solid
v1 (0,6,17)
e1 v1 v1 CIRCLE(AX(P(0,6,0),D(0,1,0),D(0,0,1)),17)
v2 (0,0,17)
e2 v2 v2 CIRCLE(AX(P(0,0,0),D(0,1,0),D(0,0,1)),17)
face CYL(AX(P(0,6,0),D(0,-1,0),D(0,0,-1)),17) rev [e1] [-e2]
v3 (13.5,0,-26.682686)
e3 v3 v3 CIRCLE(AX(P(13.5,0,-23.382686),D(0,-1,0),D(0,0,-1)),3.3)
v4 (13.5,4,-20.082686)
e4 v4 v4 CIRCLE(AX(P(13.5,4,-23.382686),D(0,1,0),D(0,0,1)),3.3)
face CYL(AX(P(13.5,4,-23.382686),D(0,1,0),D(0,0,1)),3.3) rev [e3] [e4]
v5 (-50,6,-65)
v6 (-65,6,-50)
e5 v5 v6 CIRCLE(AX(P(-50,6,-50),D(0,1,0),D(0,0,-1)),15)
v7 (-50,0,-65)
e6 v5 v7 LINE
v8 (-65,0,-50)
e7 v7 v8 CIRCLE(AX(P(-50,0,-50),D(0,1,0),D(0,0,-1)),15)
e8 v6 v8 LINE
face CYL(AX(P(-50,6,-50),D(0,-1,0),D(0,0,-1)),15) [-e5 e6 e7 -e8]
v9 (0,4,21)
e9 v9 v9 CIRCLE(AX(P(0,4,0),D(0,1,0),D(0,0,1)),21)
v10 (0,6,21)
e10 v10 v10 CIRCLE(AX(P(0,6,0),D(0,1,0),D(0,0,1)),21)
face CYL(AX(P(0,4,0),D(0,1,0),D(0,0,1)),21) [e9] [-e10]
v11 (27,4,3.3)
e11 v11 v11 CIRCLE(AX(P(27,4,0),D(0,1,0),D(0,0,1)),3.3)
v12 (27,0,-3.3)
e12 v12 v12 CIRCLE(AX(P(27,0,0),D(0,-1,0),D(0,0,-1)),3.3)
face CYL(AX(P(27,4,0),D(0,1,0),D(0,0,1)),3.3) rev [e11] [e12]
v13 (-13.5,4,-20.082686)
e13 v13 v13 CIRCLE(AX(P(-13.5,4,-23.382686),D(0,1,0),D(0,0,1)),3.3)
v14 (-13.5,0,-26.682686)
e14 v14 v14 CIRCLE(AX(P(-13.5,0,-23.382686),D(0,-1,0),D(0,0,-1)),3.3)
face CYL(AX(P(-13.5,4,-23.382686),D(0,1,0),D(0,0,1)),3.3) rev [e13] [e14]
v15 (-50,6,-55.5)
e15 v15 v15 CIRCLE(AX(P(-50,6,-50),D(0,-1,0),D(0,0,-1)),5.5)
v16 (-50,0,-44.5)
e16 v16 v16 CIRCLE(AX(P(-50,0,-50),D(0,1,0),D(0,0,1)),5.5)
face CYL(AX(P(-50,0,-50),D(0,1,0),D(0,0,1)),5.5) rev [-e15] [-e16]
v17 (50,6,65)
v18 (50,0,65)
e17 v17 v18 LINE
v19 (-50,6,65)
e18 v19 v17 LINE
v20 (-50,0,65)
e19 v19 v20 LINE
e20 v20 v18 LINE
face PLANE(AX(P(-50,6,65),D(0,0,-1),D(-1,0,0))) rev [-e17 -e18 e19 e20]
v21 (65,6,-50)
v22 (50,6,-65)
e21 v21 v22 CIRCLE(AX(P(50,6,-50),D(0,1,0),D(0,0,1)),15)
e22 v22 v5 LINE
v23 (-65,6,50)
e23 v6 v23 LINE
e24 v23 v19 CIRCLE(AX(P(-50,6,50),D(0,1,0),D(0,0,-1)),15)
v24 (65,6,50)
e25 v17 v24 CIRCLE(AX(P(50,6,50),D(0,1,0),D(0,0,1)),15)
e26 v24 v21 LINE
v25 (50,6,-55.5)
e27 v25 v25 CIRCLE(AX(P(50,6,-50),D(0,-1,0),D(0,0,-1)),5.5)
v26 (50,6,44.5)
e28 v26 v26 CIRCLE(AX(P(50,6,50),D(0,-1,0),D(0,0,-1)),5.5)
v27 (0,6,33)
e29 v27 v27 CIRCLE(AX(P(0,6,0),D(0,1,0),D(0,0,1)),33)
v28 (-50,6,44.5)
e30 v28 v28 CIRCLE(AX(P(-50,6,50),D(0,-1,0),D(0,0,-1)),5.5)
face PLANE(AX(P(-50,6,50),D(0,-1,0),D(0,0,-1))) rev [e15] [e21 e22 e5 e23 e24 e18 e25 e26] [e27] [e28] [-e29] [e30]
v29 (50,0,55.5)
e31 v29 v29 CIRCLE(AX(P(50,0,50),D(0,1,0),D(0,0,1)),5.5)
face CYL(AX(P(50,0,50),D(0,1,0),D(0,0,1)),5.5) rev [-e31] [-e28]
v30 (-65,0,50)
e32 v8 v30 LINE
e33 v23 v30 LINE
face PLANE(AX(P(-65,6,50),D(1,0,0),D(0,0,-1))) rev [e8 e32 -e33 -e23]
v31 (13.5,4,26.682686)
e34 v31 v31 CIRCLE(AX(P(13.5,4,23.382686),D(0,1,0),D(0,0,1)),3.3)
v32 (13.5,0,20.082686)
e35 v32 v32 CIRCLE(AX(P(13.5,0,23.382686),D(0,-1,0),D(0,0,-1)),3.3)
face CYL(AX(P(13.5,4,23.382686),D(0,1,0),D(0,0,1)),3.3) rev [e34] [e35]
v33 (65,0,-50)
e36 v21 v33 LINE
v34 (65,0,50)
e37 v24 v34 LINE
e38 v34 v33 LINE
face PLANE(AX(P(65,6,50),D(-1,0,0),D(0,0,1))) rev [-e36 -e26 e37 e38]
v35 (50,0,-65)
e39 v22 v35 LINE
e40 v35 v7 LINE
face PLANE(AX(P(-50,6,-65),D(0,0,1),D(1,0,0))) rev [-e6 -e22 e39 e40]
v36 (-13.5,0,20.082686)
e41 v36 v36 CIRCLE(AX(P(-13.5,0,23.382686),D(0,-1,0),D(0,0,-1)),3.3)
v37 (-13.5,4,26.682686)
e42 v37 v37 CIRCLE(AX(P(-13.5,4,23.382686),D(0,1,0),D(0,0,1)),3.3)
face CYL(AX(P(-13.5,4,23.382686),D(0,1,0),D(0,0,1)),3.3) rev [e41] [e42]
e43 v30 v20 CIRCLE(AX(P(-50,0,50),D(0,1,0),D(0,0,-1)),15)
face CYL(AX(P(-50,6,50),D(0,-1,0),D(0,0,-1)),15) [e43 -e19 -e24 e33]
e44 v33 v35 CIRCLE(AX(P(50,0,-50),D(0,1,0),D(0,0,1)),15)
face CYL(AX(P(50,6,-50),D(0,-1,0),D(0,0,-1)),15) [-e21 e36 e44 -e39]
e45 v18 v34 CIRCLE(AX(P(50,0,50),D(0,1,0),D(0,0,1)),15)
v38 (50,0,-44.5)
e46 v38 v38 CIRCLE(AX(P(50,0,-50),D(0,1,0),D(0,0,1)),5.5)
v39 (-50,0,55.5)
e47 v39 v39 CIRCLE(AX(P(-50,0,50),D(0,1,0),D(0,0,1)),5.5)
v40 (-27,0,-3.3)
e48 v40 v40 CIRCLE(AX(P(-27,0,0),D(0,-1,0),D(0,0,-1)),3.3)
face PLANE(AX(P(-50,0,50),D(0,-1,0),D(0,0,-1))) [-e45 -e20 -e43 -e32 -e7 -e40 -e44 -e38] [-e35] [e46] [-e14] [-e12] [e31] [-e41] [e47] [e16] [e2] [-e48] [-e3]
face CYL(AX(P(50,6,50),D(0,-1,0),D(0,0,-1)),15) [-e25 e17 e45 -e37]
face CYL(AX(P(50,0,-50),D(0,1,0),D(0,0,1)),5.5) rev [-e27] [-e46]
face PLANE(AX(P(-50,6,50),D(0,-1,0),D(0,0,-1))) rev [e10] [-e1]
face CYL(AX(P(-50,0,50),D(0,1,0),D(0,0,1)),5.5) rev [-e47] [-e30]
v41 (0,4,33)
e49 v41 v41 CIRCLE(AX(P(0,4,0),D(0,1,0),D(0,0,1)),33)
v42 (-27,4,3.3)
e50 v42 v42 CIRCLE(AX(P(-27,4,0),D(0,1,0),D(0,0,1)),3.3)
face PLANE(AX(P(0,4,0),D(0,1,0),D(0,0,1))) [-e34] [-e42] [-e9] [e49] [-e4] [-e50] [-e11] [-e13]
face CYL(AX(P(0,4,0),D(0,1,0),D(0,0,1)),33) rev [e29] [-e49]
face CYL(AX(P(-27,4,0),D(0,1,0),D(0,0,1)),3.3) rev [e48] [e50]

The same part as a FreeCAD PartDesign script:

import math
import FreeCAD as App
import Part
import Sketcher

V = App.Vector
Q = App.Units.Quantity

doc = App.newDocument("Part")
body = doc.addObject("PartDesign::Body", "Body")

# Sketch on XZ plane
sketch1 = body.newObject("Sketcher::SketchObject", "Sketch")
sketch1.AttachmentSupport = (doc.getObject("XZ_Plane"), [""])
sketch1.MapMode = "FlatFace"
sketch1.addGeometry(Part.LineSegment(V(-50, 65, 0), V(50, 65, 0)), False)
sketch1.addGeometry(Part.ArcOfCircle(Part.Circle(V(50, 50, 0), V(0, 0, 1), 15), math.radians(0), math.radians(90)), False)
sketch1.addGeometry(Part.LineSegment(V(65, 50, 0), V(65, -50, 0)), False)
sketch1.addGeometry(Part.ArcOfCircle(Part.Circle(V(50, -50, 0), V(0, 0, 1), 15), math.radians(-90), math.radians(0)), False)
sketch1.addGeometry(Part.LineSegment(V(50, -65, 0), V(-50, -65, 0)), False)
sketch1.addGeometry(Part.ArcOfCircle(Part.Circle(V(-50, -50, 0), V(0, 0, 1), 15), math.radians(180), math.radians(270)), False)
sketch1.addGeometry(Part.LineSegment(V(-65, -50, 0), V(-65, 50, 0)), False)
sketch1.addGeometry(Part.ArcOfCircle(Part.Circle(V(-50, 50, 0), V(0, 0, 1), 15), math.radians(90), math.radians(180)), False)
sketch1.addGeometry(Part.Circle(V(0, 0, 0), V(0, 0, 1), 17), False)
sketch1.addConstraint(Sketcher.Constraint("Tangent", 0, 2, 1, 2))
sketch1.addConstraint(Sketcher.Constraint("Tangent", 1, 1, 2, 1))
sketch1.addConstraint(Sketcher.Constraint("Tangent", 2, 2, 3, 2))
sketch1.addConstraint(Sketcher.Constraint("Tangent", 3, 1, 4, 1))
sketch1.addConstraint(Sketcher.Constraint("Tangent", 4, 2, 5, 2))
sketch1.addConstraint(Sketcher.Constraint("Tangent", 5, 1, 6, 1))
sketch1.addConstraint(Sketcher.Constraint("Tangent", 6, 2, 7, 2))
sketch1.addConstraint(Sketcher.Constraint("Tangent", 7, 1, 0, 1))
sketch1.addConstraint(Sketcher.Constraint("Horizontal", 0))
sketch1.addConstraint(Sketcher.Constraint("Vertical", 2))
sketch1.addConstraint(Sketcher.Constraint("Horizontal", 4))
sketch1.addConstraint(Sketcher.Constraint("Vertical", 6))
sketch1.addConstraint(Sketcher.Constraint("Coincident", 8, 3, -1, 1))
sketch1.addConstraint(Sketcher.Constraint("Equal", 1, 3))
sketch1.addConstraint(Sketcher.Constraint("Equal", 3, 5))
sketch1.addConstraint(Sketcher.Constraint("Equal", 5, 7))
sketch1.addConstraint(Sketcher.Constraint("Symmetric", 1, 3, 5, 3, -1, 1))
sketch1.addConstraint(Sketcher.Constraint("Equal", 4, 2))
sketch1.addConstraint(Sketcher.Constraint("Diameter", 8, Q("34 mm")))
sketch1.addConstraint(Sketcher.Constraint("Radius", 1, Q("15 mm")))
sketch1.addConstraint(Sketcher.Constraint("DistanceX", 0, 1, 0, 2, Q("100 mm")))
pad1 = body.newObject("PartDesign::Pad", "Pad")
pad1.Profile = sketch1
pad1.Length = 6
pad1.Reversed = True

# Sketch on XZ plane
sketch2 = body.newObject("Sketcher::SketchObject", "Sketch001")
sketch2.AttachmentSupport = (doc.getObject("XZ_Plane"), [""])
sketch2.MapMode = "FlatFace"
sketch2.AttachmentOffset = App.Placement(V(0, 0, -6), App.Rotation())
sketch2.addGeometry(Part.Circle(V(0, 0, 0), V(0, 0, 1), 33), False)
sketch2.addGeometry(Part.Circle(V(0, 0, 0), V(0, 0, 1), 21), False)
sketch2.addConstraint(Sketcher.Constraint("Coincident", 0, 3, -1, 1))
sketch2.addConstraint(Sketcher.Constraint("Coincident", 1, 3, -1, 1))
sketch2.addConstraint(Sketcher.Constraint("Diameter", 0, Q("66 mm")))
sketch2.addConstraint(Sketcher.Constraint("Diameter", 1, Q("42 mm")))
pocket1 = body.newObject("PartDesign::Pocket", "Pocket")
pocket1.Profile = sketch2
pocket1.Length = 2
pocket1.Reversed = True

# Sketch on XZ plane
sketch3 = body.newObject("Sketcher::SketchObject", "Sketch002")
sketch3.AttachmentSupport = (doc.getObject("XZ_Plane"), [""])
sketch3.MapMode = "FlatFace"
sketch3.AttachmentOffset = App.Placement(V(0, 0, -6), App.Rotation())
sketch3.addGeometry(Part.Circle(V(-50, -50, 0), V(0, 0, 1), 6), False)
sketch3.addGeometry(Part.Circle(V(50, -50, 0), V(0, 0, 1), 6), False)
sketch3.addGeometry(Part.Circle(V(50, 50, 0), V(0, 0, 1), 6), False)
sketch3.addGeometry(Part.Circle(V(-50, 50, 0), V(0, 0, 1), 6), False)
sketch3.addConstraint(Sketcher.Constraint("Equal", 0, 1))
sketch3.addConstraint(Sketcher.Constraint("Equal", 1, 2))
sketch3.addConstraint(Sketcher.Constraint("Equal", 2, 3))
sketch3.addConstraint(Sketcher.Constraint("Symmetric", 0, 3, 2, 3, -1, 1))
sketch3.addConstraint(Sketcher.Constraint("Symmetric", 1, 3, 3, 3, -1, 1))
sketch3.addConstraint(Sketcher.Constraint("Symmetric", 0, 3, 1, 3, -2))
sketch3.addConstraint(Sketcher.Constraint("Diameter", 0, Q("11 mm")))
sketch3.addConstraint(Sketcher.Constraint("DistanceX", 0, 3, -1, 1, Q("50 mm")))
sketch3.addConstraint(Sketcher.Constraint("DistanceY", 0, 3, -1, 1, Q("50 mm")))
pocket2 = body.newObject("PartDesign::Pocket", "Pocket001")
pocket2.Profile = sketch3
pocket2.Type = "ThroughAll"
pocket2.Midplane = True

# Sketch on XZ plane
sketch4 = body.newObject("Sketcher::SketchObject", "Sketch003")
sketch4.AttachmentSupport = (doc.getObject("XZ_Plane"), [""])
sketch4.MapMode = "FlatFace"
sketch4.AttachmentOffset = App.Placement(V(0, 0, -4), App.Rotation())
sketch4.addGeometry(Part.Circle(V(-27, 0, 0), V(0, 0, 1), 3.3), False)
sketch4.addConstraint(Sketcher.Constraint("PointOnObject", 0, 3, -1))
sketch4.addConstraint(Sketcher.Constraint("Diameter", 0, Q("6.6 mm")))
sketch4.addConstraint(Sketcher.Constraint("DistanceX", 0, 3, -1, 1, Q("27 mm")))
doc.recompute()
hole = body.newObject("PartDesign::Hole", "Hole")
hole.Profile = sketch4
hole.ThreadType = "None"
hole.Diameter = 6.6
hole.DepthType = "Dimension"
hole.Depth = 4
hole.DrillPoint = "Flat"
hole.Reversed = True
doc.recompute()

polarpattern = body.newObject("PartDesign::PolarPattern", "PolarPattern")
polarpattern.Originals = [hole]
polarpattern.Axis = (doc.getObject("Y_Axis"), [""])
polarpattern.Angle = 360
polarpattern.Occurrences = 6
body.Tip = polarpattern

doc.recompute()
